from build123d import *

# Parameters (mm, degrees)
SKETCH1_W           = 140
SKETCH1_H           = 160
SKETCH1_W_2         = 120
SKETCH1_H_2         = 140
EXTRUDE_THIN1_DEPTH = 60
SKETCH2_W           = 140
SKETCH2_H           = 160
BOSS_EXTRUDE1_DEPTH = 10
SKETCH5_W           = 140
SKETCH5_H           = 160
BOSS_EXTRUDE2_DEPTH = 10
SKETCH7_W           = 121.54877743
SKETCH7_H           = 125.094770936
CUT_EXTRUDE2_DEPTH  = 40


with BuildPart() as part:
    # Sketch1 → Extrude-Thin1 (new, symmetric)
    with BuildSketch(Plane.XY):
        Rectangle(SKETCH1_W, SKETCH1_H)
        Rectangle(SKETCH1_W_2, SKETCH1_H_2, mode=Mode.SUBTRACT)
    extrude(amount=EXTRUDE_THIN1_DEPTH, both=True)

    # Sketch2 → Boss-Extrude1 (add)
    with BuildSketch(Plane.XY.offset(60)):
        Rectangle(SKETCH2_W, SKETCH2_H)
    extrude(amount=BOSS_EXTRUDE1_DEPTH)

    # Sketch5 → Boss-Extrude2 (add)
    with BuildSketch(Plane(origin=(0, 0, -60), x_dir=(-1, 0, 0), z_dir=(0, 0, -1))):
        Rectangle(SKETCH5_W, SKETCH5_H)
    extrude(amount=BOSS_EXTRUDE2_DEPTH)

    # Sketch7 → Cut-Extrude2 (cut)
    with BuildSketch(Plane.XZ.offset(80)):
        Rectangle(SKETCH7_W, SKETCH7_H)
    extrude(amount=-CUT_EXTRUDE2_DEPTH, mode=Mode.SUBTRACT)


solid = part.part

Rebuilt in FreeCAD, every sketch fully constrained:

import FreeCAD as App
import Part
import Sketcher

doc = App.newDocument("Part")
params = doc.addObject("Spreadsheet::Sheet", "Params")
for row, (alias, value) in enumerate([
    ("sketch1_width", "140 mm"),
    ("sketch1_width2", "120 mm"),
    ("sketch1_height", "160 mm"),
    ("pad1_length", "120 mm"),
    ("sketch2_width", "140 mm"),
    ("sketch2_height", "160 mm"),
    ("pad2_length", "10 mm"),
    ("sketch3_width", "140 mm"),
    ("sketch3_height", "160 mm"),
    ("pad3_length", "10 mm"),
    ("pocket1_length", "40 mm"),
], start=1):
    params.set(f"A{row}", alias)
    params.set(f"B{row}", "=" + value)
    params.setAlias(f"B{row}", alias)

body = doc.addObject("PartDesign::Body", "Body")

# Sketch on XY plane
sketch1 = body.newObject("Sketcher::SketchObject", "Sketch")
sketch1.AttachmentSupport = (doc.getObject("XY_Plane"), [""])
sketch1.MapMode = "FlatFace"
sketch1.addGeometry([
    Part.LineSegment(App.Vector(-70, 80, 0), App.Vector(-70, -80, 0)),  # 0
    Part.LineSegment(App.Vector(-70, -80, 0), App.Vector(70, -80, 0)),  # 1
    Part.LineSegment(App.Vector(70, -80, 0), App.Vector(70, 80, 0)),  # 2
    Part.LineSegment(App.Vector(70, 80, 0), App.Vector(-70, 80, 0)),  # 3
    Part.LineSegment(App.Vector(60, -70, 0), App.Vector(-60, -70, 0)),  # 4
    Part.LineSegment(App.Vector(-60, -70, 0), App.Vector(-60, 70, 0)),  # 5
    Part.LineSegment(App.Vector(-60, 70, 0), App.Vector(60, 70, 0)),  # 6
    Part.LineSegment(App.Vector(60, 70, 0), App.Vector(60, -70, 0)),  # 7
], False)
sketch1.addConstraint([
    Sketcher.Constraint("Coincident", 0, 2, 1, 1),
    Sketcher.Constraint("Coincident", 1, 2, 2, 1),
    Sketcher.Constraint("Coincident", 2, 2, 3, 1),
    Sketcher.Constraint("Coincident", 3, 2, 0, 1),
    Sketcher.Constraint("Coincident", 4, 2, 5, 1),
    Sketcher.Constraint("Coincident", 5, 2, 6, 1),
    Sketcher.Constraint("Coincident", 6, 2, 7, 1),
    Sketcher.Constraint("Coincident", 7, 2, 4, 1),
    Sketcher.Constraint("Vertical", 0),
    Sketcher.Constraint("Horizontal", 1),
    Sketcher.Constraint("Vertical", 2),
    Sketcher.Constraint("Horizontal", 3),
    Sketcher.Constraint("Horizontal", 4),
    Sketcher.Constraint("Vertical", 5),
    Sketcher.Constraint("Horizontal", 6),
    Sketcher.Constraint("Vertical", 7),
    Sketcher.Constraint("Symmetric", 0, 2, 2, 2, -1, 1),
    Sketcher.Constraint("Symmetric", 4, 2, 6, 2, -1, 1),
    Sketcher.Constraint("Equal", 3, 5),
    Sketcher.Constraint("DistanceX", 1, 1, 1, 2, 140.0),
    Sketcher.Constraint("DistanceX", 4, 2, 4, 1, 120.0),
    Sketcher.Constraint("DistanceY", 0, 2, 0, 1, 160.0),
])
sketch1.setExpression("Constraints[19]", "Params.sketch1_width")
sketch1.setExpression("Constraints[20]", "Params.sketch1_width2")
sketch1.setExpression("Constraints[21]", "Params.sketch1_height")
pad1 = body.newObject("PartDesign::Pad", "Pad")
pad1.Profile = sketch1
pad1.setExpression("Length", "Params.pad1_length")
pad1.Midplane = True

# Sketch on XY plane
sketch2 = body.newObject("Sketcher::SketchObject", "Sketch001")
sketch2.AttachmentSupport = (doc.getObject("XY_Plane"), [""])
sketch2.MapMode = "FlatFace"
sketch2.AttachmentOffset = App.Placement(App.Vector(0, 0, 60), App.Rotation())
sketch2.addGeometry([
    Part.LineSegment(App.Vector(-70, 80, 0), App.Vector(-70, -80, 0)),
    Part.LineSegment(App.Vector(-70, -80, 0), App.Vector(70, -80, 0)),
    Part.LineSegment(App.Vector(70, -80, 0), App.Vector(70, 80, 0)),
    Part.LineSegment(App.Vector(70, 80, 0), App.Vector(-70, 80, 0)),
], False)
sketch2.addConstraint([
    Sketcher.Constraint("Coincident", 0, 2, 1, 1),
    Sketcher.Constraint("Coincident", 1, 2, 2, 1),
    Sketcher.Constraint("Coincident", 2, 2, 3, 1),
    Sketcher.Constraint("Coincident", 3, 2, 0, 1),
    Sketcher.Constraint("Vertical", 0),
    Sketcher.Constraint("Horizontal", 1),
    Sketcher.Constraint("Vertical", 2),
    Sketcher.Constraint("Horizontal", 3),
    Sketcher.Constraint("Symmetric", 0, 2, 2, 2, -1, 1),
    Sketcher.Constraint("DistanceX", 1, 1, 1, 2, 140.0),
    Sketcher.Constraint("DistanceY", 0, 2, 0, 1, 160.0),
])
sketch2.setExpression("Constraints[9]", "Params.sketch2_width")
sketch2.setExpression("Constraints[10]", "Params.sketch2_height")
pad2 = body.newObject("PartDesign::Pad", "Pad001")
pad2.Profile = sketch2
pad2.setExpression("Length", "Params.pad2_length")

# Sketch on XY plane
sketch3 = body.newObject("Sketcher::SketchObject", "Sketch002")
sketch3.AttachmentSupport = (doc.getObject("XY_Plane"), [""])
sketch3.MapMode = "FlatFace"
sketch3.AttachmentOffset = App.Placement(App.Vector(0, 0, -60), App.Rotation())
sketch3.addGeometry([
    Part.LineSegment(App.Vector(70, 80, 0), App.Vector(70, -80, 0)),
    Part.LineSegment(App.Vector(70, -80, 0), App.Vector(-70, -80, 0)),
    Part.LineSegment(App.Vector(-70, -80, 0), App.Vector(-70, 80, 0)),
    Part.LineSegment(App.Vector(-70, 80, 0), App.Vector(70, 80, 0)),
], False)
sketch3.addConstraint([
    Sketcher.Constraint("Coincident", 0, 2, 1, 1),
    Sketcher.Constraint("Coincident", 1, 2, 2, 1),
    Sketcher.Constraint("Coincident", 2, 2, 3, 1),
    Sketcher.Constraint("Coincident", 3, 2, 0, 1),
    Sketcher.Constraint("Vertical", 0),
    Sketcher.Constraint("Horizontal", 1),
    Sketcher.Constraint("Vertical", 2),
    Sketcher.Constraint("Horizontal", 3),
    Sketcher.Constraint("Symmetric", 0, 2, 2, 2, -1, 1),
    Sketcher.Constraint("DistanceX", 1, 2, 1, 1, 140.0),
    Sketcher.Constraint("DistanceY", 0, 2, 0, 1, 160.0),
])
sketch3.setExpression("Constraints[9]", "Params.sketch3_width")
sketch3.setExpression("Constraints[10]", "Params.sketch3_height")
pad3 = body.newObject("PartDesign::Pad", "Pad002")
pad3.Profile = sketch3
pad3.setExpression("Length", "Params.pad3_length")
pad3.Reversed = True

# Sketch on XZ plane
sketch4 = body.newObject("Sketcher::SketchObject", "Sketch003")
sketch4.AttachmentSupport = (doc.getObject("XZ_Plane"), [""])
sketch4.MapMode = "FlatFace"
sketch4.AttachmentOffset = App.Placement(App.Vector(0, 0, 80), App.Rotation())
sketch4.addGeometry([
    Part.LineSegment(App.Vector(-61, 63, 0), App.Vector(-61, -63, 0)),
    Part.LineSegment(App.Vector(-61, -63, 0), App.Vector(61, -63, 0)),
    Part.LineSegment(App.Vector(61, -63, 0), App.Vector(61, 63, 0)),
    Part.LineSegment(App.Vector(61, 63, 0), App.Vector(-61, 63, 0)),
], False)
sketch4.addConstraint([
    Sketcher.Constraint("Coincident", 0, 2, 1, 1),
    Sketcher.Constraint("Coincident", 1, 2, 2, 1),
    Sketcher.Constraint("Coincident", 2, 2, 3, 1),
    Sketcher.Constraint("Coincident", 3, 2, 0, 1),
    Sketcher.Constraint("Vertical", 0),
    Sketcher.Constraint("Horizontal", 1),
    Sketcher.Constraint("Vertical", 2),
    Sketcher.Constraint("Horizontal", 3),
    Sketcher.Constraint("Symmetric", 0, 2, 2, 2, -1, 1),
    Sketcher.Constraint("DistanceY", 0, 2, 0, 1, 125.094771),
    Sketcher.Constraint("DistanceX", 1, 1, 1, 2, 121.548777),
])
pocket1 = body.newObject("PartDesign::Pocket", "Pocket")
pocket1.Profile = sketch4
pocket1.setExpression("Length", "Params.pocket1_length")

doc.recompute()
